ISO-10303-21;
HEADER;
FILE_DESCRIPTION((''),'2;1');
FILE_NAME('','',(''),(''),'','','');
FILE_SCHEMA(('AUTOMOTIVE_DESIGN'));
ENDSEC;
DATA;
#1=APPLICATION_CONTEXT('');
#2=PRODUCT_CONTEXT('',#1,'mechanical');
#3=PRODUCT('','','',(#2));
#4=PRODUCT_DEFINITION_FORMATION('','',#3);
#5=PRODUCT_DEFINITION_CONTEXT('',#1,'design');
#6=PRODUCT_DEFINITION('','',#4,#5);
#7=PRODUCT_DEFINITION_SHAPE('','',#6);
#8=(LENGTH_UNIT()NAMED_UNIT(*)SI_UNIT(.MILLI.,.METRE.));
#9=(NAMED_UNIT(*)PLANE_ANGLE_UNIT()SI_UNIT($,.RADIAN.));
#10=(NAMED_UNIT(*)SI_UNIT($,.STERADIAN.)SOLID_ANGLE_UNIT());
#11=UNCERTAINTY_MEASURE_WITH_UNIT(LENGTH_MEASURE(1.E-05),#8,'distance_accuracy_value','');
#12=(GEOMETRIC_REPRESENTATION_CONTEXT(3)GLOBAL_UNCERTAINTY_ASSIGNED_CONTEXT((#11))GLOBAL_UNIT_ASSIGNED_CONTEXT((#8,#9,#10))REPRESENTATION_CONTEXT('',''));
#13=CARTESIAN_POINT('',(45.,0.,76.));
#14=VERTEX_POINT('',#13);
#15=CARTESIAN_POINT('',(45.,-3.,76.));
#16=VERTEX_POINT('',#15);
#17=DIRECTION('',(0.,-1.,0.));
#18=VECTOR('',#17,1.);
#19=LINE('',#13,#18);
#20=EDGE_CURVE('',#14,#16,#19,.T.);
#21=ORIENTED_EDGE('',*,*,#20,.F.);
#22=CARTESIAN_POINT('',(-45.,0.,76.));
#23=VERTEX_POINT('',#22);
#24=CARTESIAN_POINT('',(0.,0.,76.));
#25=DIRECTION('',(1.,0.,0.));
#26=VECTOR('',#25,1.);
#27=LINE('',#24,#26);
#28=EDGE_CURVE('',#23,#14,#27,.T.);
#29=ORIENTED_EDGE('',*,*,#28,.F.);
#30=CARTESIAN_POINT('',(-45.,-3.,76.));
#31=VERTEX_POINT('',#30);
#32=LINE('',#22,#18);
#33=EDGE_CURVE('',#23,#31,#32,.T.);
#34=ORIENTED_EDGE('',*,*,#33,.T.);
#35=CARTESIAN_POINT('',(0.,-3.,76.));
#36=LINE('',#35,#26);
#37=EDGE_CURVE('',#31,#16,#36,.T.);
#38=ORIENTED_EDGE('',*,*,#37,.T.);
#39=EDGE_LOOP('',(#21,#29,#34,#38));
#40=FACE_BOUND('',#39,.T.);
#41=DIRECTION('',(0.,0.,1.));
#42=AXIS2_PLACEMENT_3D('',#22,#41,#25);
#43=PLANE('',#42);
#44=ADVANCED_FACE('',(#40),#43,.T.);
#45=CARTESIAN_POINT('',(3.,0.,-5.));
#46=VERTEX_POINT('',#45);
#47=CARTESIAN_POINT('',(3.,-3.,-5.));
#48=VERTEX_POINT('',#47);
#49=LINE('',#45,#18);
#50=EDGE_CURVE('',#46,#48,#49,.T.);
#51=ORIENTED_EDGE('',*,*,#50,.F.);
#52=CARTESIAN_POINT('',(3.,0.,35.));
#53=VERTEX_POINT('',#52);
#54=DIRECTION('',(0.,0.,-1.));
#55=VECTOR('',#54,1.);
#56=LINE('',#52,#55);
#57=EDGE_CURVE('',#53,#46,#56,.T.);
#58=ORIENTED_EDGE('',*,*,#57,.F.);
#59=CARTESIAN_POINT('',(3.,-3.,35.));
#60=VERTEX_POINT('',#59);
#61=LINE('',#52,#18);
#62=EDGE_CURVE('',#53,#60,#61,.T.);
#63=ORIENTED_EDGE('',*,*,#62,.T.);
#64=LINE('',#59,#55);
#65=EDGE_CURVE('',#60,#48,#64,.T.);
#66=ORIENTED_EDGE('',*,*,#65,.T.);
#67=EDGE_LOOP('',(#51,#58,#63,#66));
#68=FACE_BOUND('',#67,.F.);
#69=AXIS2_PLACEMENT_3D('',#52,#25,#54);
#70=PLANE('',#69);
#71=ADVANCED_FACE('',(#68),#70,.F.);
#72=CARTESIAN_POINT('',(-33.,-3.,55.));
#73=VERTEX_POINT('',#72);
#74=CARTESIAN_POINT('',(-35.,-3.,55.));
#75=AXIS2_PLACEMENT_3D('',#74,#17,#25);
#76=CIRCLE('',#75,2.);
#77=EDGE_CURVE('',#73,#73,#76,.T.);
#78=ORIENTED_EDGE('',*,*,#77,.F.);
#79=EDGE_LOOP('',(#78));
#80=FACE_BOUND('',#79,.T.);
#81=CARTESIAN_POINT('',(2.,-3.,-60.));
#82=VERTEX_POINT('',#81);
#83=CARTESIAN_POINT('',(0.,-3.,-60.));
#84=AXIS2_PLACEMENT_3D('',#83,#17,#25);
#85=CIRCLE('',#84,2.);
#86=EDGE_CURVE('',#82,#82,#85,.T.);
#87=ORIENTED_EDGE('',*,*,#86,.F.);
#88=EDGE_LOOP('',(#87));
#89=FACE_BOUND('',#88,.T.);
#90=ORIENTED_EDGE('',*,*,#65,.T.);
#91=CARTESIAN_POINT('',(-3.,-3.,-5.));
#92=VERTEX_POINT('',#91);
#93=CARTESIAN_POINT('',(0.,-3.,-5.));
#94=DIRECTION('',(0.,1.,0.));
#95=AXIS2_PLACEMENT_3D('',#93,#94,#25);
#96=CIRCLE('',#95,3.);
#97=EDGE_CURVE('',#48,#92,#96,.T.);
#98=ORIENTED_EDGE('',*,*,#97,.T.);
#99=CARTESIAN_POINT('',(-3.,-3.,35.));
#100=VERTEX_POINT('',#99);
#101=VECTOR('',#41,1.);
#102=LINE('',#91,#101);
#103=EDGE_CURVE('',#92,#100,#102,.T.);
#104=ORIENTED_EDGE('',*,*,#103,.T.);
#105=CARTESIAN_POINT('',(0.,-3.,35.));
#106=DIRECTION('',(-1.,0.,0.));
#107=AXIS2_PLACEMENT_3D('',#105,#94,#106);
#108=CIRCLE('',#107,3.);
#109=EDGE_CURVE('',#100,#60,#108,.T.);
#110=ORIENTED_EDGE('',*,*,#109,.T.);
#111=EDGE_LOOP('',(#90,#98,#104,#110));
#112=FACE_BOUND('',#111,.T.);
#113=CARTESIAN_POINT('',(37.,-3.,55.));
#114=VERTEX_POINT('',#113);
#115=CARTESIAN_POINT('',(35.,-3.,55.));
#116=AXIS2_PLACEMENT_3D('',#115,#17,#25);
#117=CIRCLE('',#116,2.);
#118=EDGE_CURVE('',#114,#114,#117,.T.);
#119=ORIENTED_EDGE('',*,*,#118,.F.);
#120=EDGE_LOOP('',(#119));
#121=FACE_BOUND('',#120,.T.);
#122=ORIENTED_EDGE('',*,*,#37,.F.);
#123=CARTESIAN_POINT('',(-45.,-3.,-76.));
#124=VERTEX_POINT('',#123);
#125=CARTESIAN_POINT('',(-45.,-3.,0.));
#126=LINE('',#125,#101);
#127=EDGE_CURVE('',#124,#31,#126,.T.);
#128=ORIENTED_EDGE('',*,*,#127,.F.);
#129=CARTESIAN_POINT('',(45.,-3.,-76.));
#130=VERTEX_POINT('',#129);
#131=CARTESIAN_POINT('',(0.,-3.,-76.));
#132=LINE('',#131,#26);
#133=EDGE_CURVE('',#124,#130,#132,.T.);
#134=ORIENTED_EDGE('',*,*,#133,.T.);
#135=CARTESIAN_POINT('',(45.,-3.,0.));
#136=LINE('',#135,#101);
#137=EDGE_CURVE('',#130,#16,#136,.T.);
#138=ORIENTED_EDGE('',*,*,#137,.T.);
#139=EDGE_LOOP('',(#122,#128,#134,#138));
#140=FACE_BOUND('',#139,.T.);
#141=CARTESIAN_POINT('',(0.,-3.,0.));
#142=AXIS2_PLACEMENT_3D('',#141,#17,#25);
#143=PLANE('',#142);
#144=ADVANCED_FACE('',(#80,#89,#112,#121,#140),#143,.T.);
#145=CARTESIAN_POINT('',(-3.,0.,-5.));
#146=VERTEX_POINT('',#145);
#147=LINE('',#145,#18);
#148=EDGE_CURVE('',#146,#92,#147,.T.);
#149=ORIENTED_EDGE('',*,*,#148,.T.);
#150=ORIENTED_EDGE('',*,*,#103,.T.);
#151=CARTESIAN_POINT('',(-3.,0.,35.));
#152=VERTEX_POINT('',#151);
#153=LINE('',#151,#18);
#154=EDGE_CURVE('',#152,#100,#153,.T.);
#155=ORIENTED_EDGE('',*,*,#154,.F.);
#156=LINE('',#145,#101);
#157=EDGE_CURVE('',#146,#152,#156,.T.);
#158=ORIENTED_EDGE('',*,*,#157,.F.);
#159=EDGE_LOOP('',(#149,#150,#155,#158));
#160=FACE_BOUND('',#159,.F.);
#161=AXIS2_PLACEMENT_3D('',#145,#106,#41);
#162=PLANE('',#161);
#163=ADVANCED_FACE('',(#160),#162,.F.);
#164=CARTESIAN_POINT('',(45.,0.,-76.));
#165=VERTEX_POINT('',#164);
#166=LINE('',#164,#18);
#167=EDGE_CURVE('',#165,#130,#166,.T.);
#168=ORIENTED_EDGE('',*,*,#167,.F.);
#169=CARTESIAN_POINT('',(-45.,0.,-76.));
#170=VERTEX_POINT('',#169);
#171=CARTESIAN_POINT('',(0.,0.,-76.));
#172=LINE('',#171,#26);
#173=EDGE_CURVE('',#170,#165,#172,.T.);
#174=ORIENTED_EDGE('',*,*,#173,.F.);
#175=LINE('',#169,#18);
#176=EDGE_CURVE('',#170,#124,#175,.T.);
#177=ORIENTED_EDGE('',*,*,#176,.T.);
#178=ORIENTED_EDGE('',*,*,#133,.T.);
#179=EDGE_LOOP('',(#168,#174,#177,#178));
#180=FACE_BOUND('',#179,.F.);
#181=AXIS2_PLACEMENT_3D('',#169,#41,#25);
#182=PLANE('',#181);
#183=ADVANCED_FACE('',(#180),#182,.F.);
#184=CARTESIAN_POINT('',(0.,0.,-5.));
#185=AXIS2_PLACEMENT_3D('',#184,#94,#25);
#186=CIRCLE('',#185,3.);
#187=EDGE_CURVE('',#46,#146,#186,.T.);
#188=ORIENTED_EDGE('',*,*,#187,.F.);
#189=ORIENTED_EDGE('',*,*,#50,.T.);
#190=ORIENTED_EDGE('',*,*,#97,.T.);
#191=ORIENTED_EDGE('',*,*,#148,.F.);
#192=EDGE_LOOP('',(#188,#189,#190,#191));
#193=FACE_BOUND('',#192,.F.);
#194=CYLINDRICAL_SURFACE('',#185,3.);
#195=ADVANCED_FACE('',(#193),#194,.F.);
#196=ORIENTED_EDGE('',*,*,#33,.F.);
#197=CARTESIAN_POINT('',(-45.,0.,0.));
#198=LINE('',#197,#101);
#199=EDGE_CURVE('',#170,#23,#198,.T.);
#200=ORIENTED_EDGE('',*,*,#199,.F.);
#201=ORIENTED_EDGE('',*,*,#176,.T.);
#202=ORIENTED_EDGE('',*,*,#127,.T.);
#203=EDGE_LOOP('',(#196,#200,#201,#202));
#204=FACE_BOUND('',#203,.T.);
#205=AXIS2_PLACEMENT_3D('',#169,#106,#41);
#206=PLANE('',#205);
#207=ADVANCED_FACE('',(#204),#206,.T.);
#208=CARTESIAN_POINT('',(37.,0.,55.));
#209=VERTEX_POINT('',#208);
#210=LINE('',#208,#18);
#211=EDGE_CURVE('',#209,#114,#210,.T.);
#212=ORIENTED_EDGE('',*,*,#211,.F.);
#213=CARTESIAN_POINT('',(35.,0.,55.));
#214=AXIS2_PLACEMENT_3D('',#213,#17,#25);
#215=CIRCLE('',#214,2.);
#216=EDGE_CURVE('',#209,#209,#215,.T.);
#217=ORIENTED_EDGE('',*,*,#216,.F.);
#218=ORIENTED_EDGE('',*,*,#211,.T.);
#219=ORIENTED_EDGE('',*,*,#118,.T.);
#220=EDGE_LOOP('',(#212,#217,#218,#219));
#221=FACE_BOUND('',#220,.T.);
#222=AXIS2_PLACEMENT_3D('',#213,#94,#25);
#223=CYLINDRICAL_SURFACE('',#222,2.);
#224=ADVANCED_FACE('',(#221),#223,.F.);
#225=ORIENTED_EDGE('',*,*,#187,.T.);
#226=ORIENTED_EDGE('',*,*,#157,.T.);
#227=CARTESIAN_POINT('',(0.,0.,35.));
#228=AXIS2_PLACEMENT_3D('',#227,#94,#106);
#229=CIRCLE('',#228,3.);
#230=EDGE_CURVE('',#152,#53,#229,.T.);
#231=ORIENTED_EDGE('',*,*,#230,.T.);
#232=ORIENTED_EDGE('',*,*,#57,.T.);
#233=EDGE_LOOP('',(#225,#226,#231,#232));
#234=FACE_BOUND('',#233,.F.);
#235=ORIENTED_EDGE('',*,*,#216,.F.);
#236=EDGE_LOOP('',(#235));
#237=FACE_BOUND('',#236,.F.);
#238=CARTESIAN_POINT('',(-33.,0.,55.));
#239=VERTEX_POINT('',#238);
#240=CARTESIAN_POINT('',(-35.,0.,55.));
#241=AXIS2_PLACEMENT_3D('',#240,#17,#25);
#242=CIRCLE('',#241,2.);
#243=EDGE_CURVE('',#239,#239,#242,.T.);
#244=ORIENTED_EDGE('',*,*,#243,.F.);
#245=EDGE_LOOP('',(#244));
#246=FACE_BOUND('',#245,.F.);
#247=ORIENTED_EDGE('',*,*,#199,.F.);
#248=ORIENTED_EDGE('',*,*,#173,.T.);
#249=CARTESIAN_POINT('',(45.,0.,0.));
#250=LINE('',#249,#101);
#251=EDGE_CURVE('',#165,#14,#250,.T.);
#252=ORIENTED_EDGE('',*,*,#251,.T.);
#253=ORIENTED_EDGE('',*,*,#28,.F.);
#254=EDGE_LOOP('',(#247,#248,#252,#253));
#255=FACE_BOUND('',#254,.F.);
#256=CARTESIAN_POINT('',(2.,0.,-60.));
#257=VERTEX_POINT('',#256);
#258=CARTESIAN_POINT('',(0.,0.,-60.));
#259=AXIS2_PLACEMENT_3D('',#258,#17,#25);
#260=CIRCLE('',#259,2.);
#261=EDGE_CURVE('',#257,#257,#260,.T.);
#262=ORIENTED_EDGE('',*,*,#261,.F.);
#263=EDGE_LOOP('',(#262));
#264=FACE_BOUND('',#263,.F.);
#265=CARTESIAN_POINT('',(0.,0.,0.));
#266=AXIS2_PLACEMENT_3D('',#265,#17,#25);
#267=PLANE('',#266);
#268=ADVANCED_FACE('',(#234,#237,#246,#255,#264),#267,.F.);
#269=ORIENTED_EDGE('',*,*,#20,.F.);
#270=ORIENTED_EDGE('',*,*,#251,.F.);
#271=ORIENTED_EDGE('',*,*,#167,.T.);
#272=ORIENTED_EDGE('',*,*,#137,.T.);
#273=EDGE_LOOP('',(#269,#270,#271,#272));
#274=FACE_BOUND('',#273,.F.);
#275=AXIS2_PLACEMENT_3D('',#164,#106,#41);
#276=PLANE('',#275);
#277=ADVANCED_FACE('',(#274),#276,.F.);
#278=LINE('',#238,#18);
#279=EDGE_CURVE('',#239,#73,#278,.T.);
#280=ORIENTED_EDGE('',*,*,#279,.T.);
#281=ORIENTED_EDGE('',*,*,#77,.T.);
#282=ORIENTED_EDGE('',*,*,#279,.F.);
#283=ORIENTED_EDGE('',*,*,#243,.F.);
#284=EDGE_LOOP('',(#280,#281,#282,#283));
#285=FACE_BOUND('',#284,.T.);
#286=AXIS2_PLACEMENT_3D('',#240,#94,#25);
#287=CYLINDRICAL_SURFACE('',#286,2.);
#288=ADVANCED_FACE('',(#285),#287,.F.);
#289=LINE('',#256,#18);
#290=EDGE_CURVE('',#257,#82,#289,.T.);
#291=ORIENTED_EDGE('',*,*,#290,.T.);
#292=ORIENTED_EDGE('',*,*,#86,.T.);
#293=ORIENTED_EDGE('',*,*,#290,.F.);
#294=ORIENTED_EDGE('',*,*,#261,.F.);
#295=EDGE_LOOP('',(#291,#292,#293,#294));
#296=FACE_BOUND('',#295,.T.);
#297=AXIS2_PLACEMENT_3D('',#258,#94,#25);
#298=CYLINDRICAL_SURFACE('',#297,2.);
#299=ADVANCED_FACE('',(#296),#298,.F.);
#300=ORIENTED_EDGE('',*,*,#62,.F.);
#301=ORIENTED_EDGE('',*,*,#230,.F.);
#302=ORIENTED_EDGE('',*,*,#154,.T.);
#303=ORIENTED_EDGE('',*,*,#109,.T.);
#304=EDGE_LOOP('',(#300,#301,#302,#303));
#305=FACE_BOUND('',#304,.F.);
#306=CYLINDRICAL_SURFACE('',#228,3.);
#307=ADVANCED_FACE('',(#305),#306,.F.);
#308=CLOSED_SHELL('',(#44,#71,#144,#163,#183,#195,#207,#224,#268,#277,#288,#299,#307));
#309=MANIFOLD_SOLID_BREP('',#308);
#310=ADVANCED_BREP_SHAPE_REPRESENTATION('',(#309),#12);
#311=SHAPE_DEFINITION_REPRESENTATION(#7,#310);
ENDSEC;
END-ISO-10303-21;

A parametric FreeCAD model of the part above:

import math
import FreeCAD as App
import Part
import Sketcher
from FreeCAD import Vector


def add_polygon(sketch, points):
    """Adds a closed chain of lines whose ends are joined by coincident constraints."""
    first, n = sketch.GeometryCount, len(points)
    for a, b in zip(points, points[1:] + points[:1]):
        sketch.addGeometry(Part.LineSegment(App.Vector(*a, 0), App.Vector(*b, 0)), False)
    for i in range(n):
        sketch.addConstraint(Sketcher.Constraint("Coincident", first + i, 2, first + (i + 1) % n, 1))

doc = App.newDocument("Part")
body = doc.addObject("PartDesign::Body", "Body")

sketch1 = body.newObject("Sketcher::SketchObject", "Sketch")
sketch1.AttachmentSupport = (doc.getObject("XZ_Plane"), [""])
sketch1.MapMode = "FlatFace"
add_polygon(sketch1, [(-45, 76), (-45, -76), (45, -76), (45, 76)])
sketch1.addGeometry(Part.Circle(Vector(0, -60, 0), Vector(0, 0, 1), 2), False)
sketch1.addGeometry(Part.Circle(Vector(-35, 55, 0), Vector(0, 0, 1), 2), False)
sketch1.addGeometry(Part.LineSegment(Vector(3, 35, 0), Vector(3, -5, 0)), False)
sketch1.addGeometry(Part.ArcOfCircle(Part.Circle(Vector(0, -5, 0), Vector(0, 0, 1), 3), math.radians(180), math.radians(360)), False)
sketch1.addGeometry(Part.LineSegment(Vector(-3, -5, 0), Vector(-3, 35, 0)), False)
sketch1.addGeometry(Part.ArcOfCircle(Part.Circle(Vector(0, 35, 0), Vector(0, 0, 1), 3), math.radians(0), math.radians(180)), False)
sketch1.addGeometry(Part.Circle(Vector(35, 55, 0), Vector(0, 0, 1), 2), False)
sketch1.addConstraint([
    Sketcher.Constraint("Tangent", 6, 2, 7, 2),
    Sketcher.Constraint("Tangent", 7, 1, 8, 1),
    Sketcher.Constraint("Tangent", 8, 2, 9, 2),
    Sketcher.Constraint("Tangent", 9, 1, 6, 1),
    Sketcher.Constraint("Vertical", 0),
    Sketcher.Constraint("Horizontal", 1),
    Sketcher.Constraint("Vertical", 2),
    Sketcher.Constraint("Horizontal", 3),
    Sketcher.Constraint("Vertical", 6),
    Sketcher.Constraint("Vertical", 8),
    Sketcher.Constraint("Equal", 4, 5),
    Sketcher.Constraint("Equal", 5, 10),
    Sketcher.Constraint("Symmetric", 0, 2, 2, 2, -1, 1),
    Sketcher.Constraint("Symmetric", 5, 3, 10, 3, -2),
    Sketcher.Constraint("PointOnObject", 4, 3, -2),
    Sketcher.Constraint("PointOnObject", 7, 3, -2),
    Sketcher.Constraint("Diameter", 4, 4.0),
    Sketcher.Constraint("Radius", 7, 3.0),
    Sketcher.Constraint("DistanceX", 1, 1, 1, 2, 90.0),
    Sketcher.Constraint("DistanceY", 0, 2, 0, 1, 152.0),
    Sketcher.Constraint("DistanceY", 6, 2, 6, 1, 40.0),
    Sketcher.Constraint("DistanceY", 4, 3, -1, 1, 60.0),
    Sketcher.Constraint("DistanceX", 5, 3, -1, 1, 35.0),
    Sketcher.Constraint("DistanceY", -1, 1, 5, 3, 55.0),
    Sketcher.Constraint("DistanceY", 7, 3, -1, 1, 5.0),
])
pad1 = body.newObject("PartDesign::Pad", "Pad")
pad1.Profile = sketch1
pad1.Length = 3

doc.recompute()
